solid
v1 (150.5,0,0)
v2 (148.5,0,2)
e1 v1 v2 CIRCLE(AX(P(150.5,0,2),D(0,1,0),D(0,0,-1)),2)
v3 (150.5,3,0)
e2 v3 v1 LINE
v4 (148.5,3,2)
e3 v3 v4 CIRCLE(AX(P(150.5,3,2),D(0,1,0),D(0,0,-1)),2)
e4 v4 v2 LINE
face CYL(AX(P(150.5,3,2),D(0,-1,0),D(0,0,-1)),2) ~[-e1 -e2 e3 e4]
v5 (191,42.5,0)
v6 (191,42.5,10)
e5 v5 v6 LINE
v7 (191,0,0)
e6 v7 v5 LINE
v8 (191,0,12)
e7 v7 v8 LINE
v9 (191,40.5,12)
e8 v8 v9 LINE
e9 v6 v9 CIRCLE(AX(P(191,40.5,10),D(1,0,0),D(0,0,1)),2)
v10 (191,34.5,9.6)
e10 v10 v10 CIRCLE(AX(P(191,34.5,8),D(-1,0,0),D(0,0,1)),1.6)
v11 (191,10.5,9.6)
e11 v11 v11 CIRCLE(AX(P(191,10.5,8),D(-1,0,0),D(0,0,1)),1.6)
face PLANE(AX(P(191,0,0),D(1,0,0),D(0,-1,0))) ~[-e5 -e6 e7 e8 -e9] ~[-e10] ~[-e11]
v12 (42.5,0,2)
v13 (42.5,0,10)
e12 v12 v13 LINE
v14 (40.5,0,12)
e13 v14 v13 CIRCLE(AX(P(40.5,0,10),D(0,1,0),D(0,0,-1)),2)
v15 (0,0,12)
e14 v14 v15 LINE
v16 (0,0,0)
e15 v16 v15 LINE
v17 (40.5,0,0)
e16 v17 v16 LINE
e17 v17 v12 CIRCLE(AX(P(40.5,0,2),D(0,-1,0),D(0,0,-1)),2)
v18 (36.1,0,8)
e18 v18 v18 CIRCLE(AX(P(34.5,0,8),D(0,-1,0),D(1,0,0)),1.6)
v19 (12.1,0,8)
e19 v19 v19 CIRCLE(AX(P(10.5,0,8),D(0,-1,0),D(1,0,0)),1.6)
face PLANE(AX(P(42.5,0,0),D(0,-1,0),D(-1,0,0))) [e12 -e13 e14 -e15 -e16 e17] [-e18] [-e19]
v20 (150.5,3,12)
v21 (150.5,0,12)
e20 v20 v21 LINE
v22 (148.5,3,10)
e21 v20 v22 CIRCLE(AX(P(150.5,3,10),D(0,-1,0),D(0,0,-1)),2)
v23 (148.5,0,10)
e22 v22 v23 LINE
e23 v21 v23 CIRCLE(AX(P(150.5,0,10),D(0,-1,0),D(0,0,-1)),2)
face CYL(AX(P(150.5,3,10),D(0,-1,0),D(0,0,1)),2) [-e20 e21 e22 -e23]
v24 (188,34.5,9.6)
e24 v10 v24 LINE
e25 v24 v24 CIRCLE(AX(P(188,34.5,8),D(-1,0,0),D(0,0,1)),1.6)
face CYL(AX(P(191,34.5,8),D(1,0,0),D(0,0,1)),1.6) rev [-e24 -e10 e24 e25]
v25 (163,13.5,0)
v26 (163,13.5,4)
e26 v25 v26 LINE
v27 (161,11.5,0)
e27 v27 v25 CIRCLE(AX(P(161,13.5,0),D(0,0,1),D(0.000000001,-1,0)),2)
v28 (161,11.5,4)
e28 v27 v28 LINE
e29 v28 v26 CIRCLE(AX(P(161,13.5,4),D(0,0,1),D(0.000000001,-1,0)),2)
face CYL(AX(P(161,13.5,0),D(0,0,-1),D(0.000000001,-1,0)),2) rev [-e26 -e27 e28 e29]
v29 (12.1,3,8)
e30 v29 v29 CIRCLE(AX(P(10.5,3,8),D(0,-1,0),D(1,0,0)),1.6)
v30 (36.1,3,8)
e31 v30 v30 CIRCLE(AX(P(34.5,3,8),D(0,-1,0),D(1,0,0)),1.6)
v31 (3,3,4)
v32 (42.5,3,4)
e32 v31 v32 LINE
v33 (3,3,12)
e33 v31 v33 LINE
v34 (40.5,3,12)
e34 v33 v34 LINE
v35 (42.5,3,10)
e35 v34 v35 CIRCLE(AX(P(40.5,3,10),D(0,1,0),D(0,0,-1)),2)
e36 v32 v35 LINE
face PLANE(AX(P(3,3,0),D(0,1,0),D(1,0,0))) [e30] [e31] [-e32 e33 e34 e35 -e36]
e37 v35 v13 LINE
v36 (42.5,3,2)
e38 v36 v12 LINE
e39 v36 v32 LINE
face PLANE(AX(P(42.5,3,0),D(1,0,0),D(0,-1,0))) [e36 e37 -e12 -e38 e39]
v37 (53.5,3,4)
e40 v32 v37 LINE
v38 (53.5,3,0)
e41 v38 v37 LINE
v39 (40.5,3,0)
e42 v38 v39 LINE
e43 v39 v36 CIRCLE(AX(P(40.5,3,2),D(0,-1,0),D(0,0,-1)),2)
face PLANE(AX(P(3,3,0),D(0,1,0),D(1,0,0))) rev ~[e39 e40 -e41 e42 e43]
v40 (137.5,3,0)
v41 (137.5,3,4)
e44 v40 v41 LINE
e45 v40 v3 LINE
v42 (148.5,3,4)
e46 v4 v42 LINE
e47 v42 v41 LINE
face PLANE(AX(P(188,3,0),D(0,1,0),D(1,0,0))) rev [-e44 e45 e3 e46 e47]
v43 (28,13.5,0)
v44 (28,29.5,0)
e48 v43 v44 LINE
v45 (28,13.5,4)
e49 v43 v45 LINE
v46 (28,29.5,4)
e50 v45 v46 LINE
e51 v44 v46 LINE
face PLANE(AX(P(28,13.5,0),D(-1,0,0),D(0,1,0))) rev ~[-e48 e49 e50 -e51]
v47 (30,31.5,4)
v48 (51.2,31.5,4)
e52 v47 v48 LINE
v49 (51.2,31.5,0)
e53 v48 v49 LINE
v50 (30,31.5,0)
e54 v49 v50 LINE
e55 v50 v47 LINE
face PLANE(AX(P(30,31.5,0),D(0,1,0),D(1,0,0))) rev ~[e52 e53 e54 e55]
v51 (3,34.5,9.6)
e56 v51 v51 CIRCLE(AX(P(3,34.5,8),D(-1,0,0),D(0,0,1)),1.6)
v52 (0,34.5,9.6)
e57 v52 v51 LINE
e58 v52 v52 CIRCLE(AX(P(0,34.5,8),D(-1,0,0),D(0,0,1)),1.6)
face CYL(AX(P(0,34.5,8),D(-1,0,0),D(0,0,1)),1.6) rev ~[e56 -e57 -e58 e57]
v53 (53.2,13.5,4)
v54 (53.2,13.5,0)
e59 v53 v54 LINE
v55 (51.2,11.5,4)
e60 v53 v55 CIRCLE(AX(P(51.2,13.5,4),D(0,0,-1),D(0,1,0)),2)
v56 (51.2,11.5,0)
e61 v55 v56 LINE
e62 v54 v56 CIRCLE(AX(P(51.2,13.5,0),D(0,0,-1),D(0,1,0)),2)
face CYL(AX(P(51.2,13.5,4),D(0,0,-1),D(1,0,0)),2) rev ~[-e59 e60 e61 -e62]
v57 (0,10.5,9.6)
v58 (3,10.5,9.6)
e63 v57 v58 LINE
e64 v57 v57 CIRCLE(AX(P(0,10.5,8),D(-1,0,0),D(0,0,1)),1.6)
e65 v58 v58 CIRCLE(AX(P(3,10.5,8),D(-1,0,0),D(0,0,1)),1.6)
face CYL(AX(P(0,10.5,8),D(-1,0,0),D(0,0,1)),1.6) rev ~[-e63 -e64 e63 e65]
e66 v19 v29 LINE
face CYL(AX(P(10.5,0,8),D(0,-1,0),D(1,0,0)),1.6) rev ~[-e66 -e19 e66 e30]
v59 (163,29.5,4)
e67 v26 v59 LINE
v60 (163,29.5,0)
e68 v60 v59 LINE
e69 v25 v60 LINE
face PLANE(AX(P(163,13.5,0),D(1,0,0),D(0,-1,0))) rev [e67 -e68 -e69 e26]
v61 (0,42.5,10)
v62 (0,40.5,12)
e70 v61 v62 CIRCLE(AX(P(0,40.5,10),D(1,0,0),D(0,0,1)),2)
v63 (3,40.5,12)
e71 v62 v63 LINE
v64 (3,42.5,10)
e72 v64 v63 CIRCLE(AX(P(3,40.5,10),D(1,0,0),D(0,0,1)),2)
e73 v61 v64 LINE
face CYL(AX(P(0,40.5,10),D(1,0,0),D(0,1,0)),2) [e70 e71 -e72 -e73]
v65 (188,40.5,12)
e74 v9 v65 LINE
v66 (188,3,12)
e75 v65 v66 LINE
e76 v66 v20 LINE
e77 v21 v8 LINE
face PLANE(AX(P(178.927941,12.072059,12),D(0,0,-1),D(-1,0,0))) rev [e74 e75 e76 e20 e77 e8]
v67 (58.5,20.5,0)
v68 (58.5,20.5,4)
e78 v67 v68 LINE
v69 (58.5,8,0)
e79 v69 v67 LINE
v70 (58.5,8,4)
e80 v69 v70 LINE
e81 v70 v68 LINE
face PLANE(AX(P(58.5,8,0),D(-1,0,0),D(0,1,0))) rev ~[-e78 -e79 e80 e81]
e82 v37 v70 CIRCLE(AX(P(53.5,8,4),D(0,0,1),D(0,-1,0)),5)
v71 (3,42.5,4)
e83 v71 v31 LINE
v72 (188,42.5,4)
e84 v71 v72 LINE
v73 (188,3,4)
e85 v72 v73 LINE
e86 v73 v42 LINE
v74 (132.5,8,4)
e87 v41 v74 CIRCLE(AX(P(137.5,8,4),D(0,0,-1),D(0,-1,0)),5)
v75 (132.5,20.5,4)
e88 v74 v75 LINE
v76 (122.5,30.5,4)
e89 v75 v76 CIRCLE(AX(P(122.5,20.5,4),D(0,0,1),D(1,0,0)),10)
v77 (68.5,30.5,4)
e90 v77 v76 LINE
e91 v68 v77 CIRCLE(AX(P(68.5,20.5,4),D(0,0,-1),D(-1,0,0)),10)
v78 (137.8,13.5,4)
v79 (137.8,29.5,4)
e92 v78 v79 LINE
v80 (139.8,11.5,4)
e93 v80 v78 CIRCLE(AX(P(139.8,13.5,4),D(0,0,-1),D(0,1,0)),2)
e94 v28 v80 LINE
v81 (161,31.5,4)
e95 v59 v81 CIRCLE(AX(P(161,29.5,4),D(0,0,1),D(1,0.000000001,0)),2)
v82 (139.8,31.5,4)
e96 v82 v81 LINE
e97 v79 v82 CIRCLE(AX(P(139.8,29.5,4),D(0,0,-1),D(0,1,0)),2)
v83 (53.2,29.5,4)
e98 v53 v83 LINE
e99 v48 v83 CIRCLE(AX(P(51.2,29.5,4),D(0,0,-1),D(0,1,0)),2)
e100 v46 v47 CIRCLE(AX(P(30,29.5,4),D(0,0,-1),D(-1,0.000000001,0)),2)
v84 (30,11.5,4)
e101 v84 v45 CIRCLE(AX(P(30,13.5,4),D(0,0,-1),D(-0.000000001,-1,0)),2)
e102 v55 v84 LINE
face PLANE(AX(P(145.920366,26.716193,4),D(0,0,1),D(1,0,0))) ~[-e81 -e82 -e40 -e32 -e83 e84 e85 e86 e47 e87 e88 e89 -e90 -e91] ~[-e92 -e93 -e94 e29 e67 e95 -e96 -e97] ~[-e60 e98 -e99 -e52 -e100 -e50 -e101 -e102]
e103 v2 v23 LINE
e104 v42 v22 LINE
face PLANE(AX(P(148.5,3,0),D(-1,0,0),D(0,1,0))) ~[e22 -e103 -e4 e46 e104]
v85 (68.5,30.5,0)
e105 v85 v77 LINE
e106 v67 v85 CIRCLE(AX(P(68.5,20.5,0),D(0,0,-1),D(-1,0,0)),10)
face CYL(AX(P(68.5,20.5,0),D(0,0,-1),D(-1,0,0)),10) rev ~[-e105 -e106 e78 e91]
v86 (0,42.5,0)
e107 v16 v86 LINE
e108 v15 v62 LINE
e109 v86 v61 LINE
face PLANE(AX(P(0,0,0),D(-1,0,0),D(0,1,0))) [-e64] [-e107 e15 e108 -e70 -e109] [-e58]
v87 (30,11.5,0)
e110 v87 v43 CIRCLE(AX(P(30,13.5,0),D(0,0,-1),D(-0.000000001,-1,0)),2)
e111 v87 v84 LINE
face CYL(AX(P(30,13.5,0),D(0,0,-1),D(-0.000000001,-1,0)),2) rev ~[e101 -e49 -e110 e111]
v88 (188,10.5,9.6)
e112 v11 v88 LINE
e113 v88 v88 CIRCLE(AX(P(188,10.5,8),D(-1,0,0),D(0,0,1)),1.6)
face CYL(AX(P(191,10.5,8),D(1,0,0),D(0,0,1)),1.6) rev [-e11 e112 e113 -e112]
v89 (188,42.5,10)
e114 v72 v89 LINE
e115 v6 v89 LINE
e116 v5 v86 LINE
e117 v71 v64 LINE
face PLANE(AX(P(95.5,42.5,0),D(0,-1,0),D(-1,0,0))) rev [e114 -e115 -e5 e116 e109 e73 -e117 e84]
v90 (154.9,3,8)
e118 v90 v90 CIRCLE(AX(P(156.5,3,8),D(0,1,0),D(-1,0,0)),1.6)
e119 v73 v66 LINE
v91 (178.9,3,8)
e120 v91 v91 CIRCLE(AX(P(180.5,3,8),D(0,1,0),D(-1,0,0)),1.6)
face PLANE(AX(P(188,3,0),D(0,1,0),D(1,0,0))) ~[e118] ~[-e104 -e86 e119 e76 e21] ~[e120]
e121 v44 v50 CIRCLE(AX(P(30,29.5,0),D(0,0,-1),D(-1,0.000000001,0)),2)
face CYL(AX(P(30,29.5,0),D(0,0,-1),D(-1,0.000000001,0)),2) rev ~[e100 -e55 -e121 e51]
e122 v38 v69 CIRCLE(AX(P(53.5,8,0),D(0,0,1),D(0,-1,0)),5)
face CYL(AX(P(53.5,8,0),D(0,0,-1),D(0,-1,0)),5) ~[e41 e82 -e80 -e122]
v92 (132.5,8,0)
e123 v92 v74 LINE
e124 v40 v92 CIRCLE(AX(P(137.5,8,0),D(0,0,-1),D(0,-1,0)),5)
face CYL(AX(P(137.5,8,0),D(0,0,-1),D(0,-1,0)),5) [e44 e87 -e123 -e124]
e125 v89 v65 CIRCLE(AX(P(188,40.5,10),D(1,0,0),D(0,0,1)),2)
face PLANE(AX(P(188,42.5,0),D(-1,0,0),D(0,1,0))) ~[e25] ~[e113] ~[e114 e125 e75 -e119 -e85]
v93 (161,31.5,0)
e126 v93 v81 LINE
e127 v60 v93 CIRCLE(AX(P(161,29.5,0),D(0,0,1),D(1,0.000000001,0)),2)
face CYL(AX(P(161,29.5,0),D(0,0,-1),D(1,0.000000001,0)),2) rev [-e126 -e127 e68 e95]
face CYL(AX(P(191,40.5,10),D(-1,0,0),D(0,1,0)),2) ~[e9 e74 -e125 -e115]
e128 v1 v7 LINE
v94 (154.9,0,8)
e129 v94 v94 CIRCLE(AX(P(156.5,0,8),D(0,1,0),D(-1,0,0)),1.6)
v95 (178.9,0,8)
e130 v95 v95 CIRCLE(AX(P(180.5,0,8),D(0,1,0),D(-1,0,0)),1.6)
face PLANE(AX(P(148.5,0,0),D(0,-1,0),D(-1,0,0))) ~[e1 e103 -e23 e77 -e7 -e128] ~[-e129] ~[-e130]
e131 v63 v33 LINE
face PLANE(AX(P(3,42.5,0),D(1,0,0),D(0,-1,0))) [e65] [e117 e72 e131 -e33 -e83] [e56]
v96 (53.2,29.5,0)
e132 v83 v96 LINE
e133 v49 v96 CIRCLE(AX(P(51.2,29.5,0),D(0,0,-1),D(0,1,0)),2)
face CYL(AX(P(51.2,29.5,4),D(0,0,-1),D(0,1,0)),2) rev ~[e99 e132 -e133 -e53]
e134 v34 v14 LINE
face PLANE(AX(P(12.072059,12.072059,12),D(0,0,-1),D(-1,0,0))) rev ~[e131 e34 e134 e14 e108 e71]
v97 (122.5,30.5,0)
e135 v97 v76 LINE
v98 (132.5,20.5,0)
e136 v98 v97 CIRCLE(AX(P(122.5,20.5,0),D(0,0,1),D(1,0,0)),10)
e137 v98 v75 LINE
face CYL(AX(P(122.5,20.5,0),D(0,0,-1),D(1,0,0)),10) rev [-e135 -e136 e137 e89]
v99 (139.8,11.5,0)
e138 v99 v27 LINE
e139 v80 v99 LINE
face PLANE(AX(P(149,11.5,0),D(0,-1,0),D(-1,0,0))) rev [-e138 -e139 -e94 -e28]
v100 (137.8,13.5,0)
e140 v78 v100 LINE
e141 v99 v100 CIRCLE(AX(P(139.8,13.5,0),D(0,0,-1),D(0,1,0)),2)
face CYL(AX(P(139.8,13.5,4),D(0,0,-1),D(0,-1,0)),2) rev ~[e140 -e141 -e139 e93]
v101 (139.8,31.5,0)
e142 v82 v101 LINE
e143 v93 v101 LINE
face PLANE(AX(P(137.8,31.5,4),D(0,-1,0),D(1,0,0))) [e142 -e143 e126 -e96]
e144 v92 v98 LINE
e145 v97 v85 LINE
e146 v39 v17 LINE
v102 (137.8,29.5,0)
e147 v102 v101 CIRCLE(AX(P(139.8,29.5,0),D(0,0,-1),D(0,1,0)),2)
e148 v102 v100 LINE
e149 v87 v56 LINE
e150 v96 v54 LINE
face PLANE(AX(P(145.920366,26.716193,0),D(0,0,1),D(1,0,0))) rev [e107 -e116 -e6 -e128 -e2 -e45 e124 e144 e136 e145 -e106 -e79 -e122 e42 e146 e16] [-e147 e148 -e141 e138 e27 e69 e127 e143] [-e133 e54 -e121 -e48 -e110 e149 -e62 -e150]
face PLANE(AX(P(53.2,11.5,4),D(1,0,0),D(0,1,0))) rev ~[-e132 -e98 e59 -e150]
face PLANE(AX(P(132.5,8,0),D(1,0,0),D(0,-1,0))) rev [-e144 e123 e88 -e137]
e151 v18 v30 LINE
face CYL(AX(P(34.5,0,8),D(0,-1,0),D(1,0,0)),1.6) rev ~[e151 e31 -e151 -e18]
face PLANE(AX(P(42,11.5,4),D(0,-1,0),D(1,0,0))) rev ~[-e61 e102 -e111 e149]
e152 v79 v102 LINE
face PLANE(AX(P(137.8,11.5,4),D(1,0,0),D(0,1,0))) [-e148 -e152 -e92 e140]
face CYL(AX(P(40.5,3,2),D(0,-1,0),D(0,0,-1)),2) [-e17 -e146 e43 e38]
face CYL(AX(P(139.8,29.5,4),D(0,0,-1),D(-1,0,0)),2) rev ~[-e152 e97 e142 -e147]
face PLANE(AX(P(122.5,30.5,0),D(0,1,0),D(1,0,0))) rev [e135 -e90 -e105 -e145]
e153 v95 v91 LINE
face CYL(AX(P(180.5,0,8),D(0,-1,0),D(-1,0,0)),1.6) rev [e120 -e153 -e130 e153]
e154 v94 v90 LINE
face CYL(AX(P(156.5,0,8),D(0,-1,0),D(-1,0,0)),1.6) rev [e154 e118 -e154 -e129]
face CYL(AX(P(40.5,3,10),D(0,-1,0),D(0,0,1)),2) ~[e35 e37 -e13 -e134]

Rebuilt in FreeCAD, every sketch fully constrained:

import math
import FreeCAD as App
import Part
import Sketcher

V = App.Vector
Q = App.Units.Quantity


def edges_at(feature, points):
    """Names of the edges that pass closest to the given points."""
    edges = feature.Shape.Edges
    near = lambda p: min(range(len(edges)), key=lambda i: edges[i].distToShape(Part.Vertex(*p))[0])
    return sorted({f"Edge{near(p) + 1}" for p in points})


def add_polygon(sketch, points):
    """Adds a closed chain of lines whose ends are joined by coincident constraints."""
    first, n = sketch.GeometryCount, len(points)
    for a, b in zip(points, points[1:] + points[:1]):
        sketch.addGeometry(Part.LineSegment(App.Vector(*a, 0), App.Vector(*b, 0)), False)
    for i in range(n):
        sketch.addConstraint(Sketcher.Constraint("Coincident", first + i, 2, first + (i + 1) % n, 1))

doc = App.newDocument("Part")
body = doc.addObject("PartDesign::Body", "Body")

sketch1 = body.newObject("Sketcher::SketchObject", "Sketch")
sketch1.AttachmentSupport = (doc.getObject("XY_Plane"), [""])
sketch1.MapMode = "FlatFace"
add_polygon(sketch1, [(0, 0), (42.5, 0), (42.5, 3), (3, 3), (3, 42.5), (0, 42.5)])
sketch1.addConstraint([
    Sketcher.Constraint("Horizontal", 0),
    Sketcher.Constraint("Vertical", 1),
    Sketcher.Constraint("Horizontal", 2),
    Sketcher.Constraint("Vertical", 3),
    Sketcher.Constraint("Horizontal", 4),
    Sketcher.Constraint("Vertical", 5),
    Sketcher.Constraint("Coincident", 5, 2, -1, 1),
    Sketcher.Constraint("Equal", 4, 1),
    Sketcher.Constraint("Equal", 2, 3),
    Sketcher.Constraint("DistanceX", 4, 2, 4, 1, Q("3 mm")),
    Sketcher.Constraint("DistanceX", 0, 1, 0, 2, Q("42.5 mm")),
])
pad1 = body.newObject("PartDesign::Pad", "Pad")
pad1.Profile = sketch1
pad1.Length = 12

sketch2 = body.newObject("Sketcher::SketchObject", "Sketch001")
sketch2.AttachmentSupport = (doc.getObject("XY_Plane"), [""])
sketch2.MapMode = "FlatFace"
sketch2.addGeometry([
    Part.LineSegment(V(95.5, 42.5, 0), V(3, 42.5, 0)),
    Part.LineSegment(V(3, 42.5, 0), V(3, 3, 0)),
    Part.LineSegment(V(3, 3, 0), V(53.5, 3, 0)),
    Part.ArcOfCircle(Part.Circle(V(53.5, 8, 0), V(0, 0, 1), 5), math.radians(-90), math.radians(0)),
    Part.LineSegment(V(58.5, 8, 0), V(58.5, 20.5, 0)),
    Part.ArcOfCircle(Part.Circle(V(68.5, 20.5, 0), V(0, 0, 1), 10), math.radians(90), math.radians(180)),
    Part.LineSegment(V(68.5, 30.5, 0), V(95.5, 30.5, 0)),
    Part.LineSegment(V(95.5, 30.5, 0), V(95.5, 42.5, 0)),
    Part.LineSegment(V(28, 13.5, 0), V(28, 29.5, 0)),
    Part.ArcOfCircle(Part.Circle(V(30, 29.5, 0), V(0, 0, 1), 2), math.radians(90), math.radians(180)),
    Part.LineSegment(V(30, 31.5, 0), V(42, 31.5, 0)),
    Part.ArcOfCircle(Part.Circle(V(42, 29.5, 0), V(0, 0, 1), 2), math.radians(0), math.radians(90)),
    Part.LineSegment(V(44, 29.5, 0), V(44, 13.5, 0)),
    Part.ArcOfCircle(Part.Circle(V(42, 13.5, 0), V(0, 0, 1), 2), math.radians(-90), math.radians(0)),
    Part.LineSegment(V(42, 11.5, 0), V(30, 11.5, 0)),
    Part.ArcOfCircle(Part.Circle(V(30, 13.5, 0), V(0, 0, 1), 2), math.radians(-180), math.radians(-90)),
], False)
sketch2.addConstraint([
    Sketcher.Constraint("Coincident", 0, 2, 1, 1),
    Sketcher.Constraint("Coincident", 1, 2, 2, 1),
    Sketcher.Constraint("Tangent", 2, 2, 3, 1),
    Sketcher.Constraint("Tangent", 3, 2, 4, 1),
    Sketcher.Constraint("Tangent", 4, 2, 5, 2),
    Sketcher.Constraint("Tangent", 5, 1, 6, 1),
    Sketcher.Constraint("Coincident", 6, 2, 7, 1),
    Sketcher.Constraint("Coincident", 7, 2, 0, 1),
    Sketcher.Constraint("Tangent", 8, 2, 9, 2),
    Sketcher.Constraint("Tangent", 9, 1, 10, 1),
    Sketcher.Constraint("Tangent", 10, 2, 11, 2),
    Sketcher.Constraint("Tangent", 11, 1, 12, 1),
    Sketcher.Constraint("Tangent", 12, 2, 13, 2),
    Sketcher.Constraint("Tangent", 13, 1, 14, 1),
    Sketcher.Constraint("Tangent", 14, 2, 15, 2),
    Sketcher.Constraint("Tangent", 15, 1, 8, 1),
    Sketcher.Constraint("Horizontal", 0),
    Sketcher.Constraint("Vertical", 1),
    Sketcher.Constraint("Horizontal", 2),
    Sketcher.Constraint("Vertical", 4),
    Sketcher.Constraint("Horizontal", 6),
    Sketcher.Constraint("Vertical", 7),
    Sketcher.Constraint("Vertical", 8),
    Sketcher.Constraint("Horizontal", 10),
    Sketcher.Constraint("Vertical", 12),
    Sketcher.Constraint("Horizontal", 14),
    Sketcher.Constraint("Equal", 9, 11),
    Sketcher.Constraint("Equal", 11, 13),
    Sketcher.Constraint("Equal", 13, 15),
    Sketcher.Constraint("Equal", 14, 7),
    Sketcher.Constraint("Radius", 3, Q("5 mm")),
    Sketcher.Constraint("Radius", 5, Q("10 mm")),
    Sketcher.Constraint("Radius", 9, Q("2 mm")),
    Sketcher.Constraint("DistanceX", 6, 1, 6, 2, Q("27 mm")),
    Sketcher.Constraint("DistanceX", 10, 1, 10, 2, Q("12 mm")),
    Sketcher.Constraint("DistanceY", 8, 1, 8, 2, Q("16 mm")),
    Sketcher.Constraint("DistanceX", 0, 2, 0, 1, Q("92.5 mm")),
    Sketcher.Constraint("DistanceY", 1, 2, 1, 1, Q("39.5 mm")),
    Sketcher.Constraint("DistanceY", -1, 1, 3, 3, Q("8 mm")),
    Sketcher.Constraint("DistanceX", -1, 1, 9, 3, Q("30 mm")),
    Sketcher.Constraint("DistanceX", -1, 1, 0, 2, Q("3 mm")),
    Sketcher.Constraint("DistanceY", 5, 3, 9, 3, Q("9 mm")),
])
pad2 = body.newObject("PartDesign::Pad", "Pad001")
pad2.Profile = sketch2
pad2.Length = 4

sketch3 = body.newObject("Sketcher::SketchObject", "Sketch002")
sketch3.AttachmentSupport = (doc.getObject("YZ_Plane"), [""])
sketch3.MapMode = "FlatFace"
sketch3.addGeometry(Part.Circle(V(10.5, 8, 0), V(0, 0, 1), 1.6), False)
sketch3.addConstraint([
    Sketcher.Constraint("Diameter", 0, Q("3.2 mm")),
    Sketcher.Constraint("DistanceY", -1, 1, 0, 3, Q("8 mm")),
    Sketcher.Constraint("DistanceX", -1, 1, 0, 3, Q("10.5 mm")),
])
pocket1 = body.newObject("PartDesign::Pocket", "Pocket")
pocket1.Profile = sketch3
pocket1.Type = "UpToFirst"
pocket1.Reversed = True

sketch4 = body.newObject("Sketcher::SketchObject", "Sketch003")
sketch4.AttachmentSupport = (doc.getObject("YZ_Plane"), [""])
sketch4.MapMode = "FlatFace"
sketch4.addGeometry(Part.Circle(V(34.5, 8, 0), V(0, 0, 1), 1.6), False)
sketch4.addConstraint([
    Sketcher.Constraint("Diameter", 0, Q("3.2 mm")),
    Sketcher.Constraint("DistanceY", -1, 1, 0, 3, Q("8 mm")),
    Sketcher.Constraint("DistanceX", -1, 1, 0, 3, Q("34.5 mm")),
])
pocket2 = body.newObject("PartDesign::Pocket", "Pocket001")
pocket2.Profile = sketch4
pocket2.Type = "UpToFirst"
pocket2.Reversed = True

sketch5 = body.newObject("Sketcher::SketchObject", "Sketch004")
sketch5.AttachmentSupport = (doc.getObject("XZ_Plane"), [""])
sketch5.MapMode = "FlatFace"
sketch5.addGeometry(Part.Circle(V(10.5, 8, 0), V(0, 0, 1), 1.6), False)
sketch5.addConstraint([
    Sketcher.Constraint("Diameter", 0, Q("3.2 mm")),
    Sketcher.Constraint("DistanceY", -1, 1, 0, 3, Q("8 mm")),
    Sketcher.Constraint("DistanceX", -1, 1, 0, 3, Q("10.5 mm")),
])
pocket3 = body.newObject("PartDesign::Pocket", "Pocket002")
pocket3.Profile = sketch5
pocket3.Type = "UpToFirst"

sketch6 = body.newObject("Sketcher::SketchObject", "Sketch005")
sketch6.AttachmentSupport = (doc.getObject("XZ_Plane"), [""])
sketch6.MapMode = "FlatFace"
sketch6.addGeometry(Part.Circle(V(34.5, 8, 0), V(0, 0, 1), 1.6), False)
sketch6.addConstraint([
    Sketcher.Constraint("Diameter", 0, Q("3.2 mm")),
    Sketcher.Constraint("DistanceY", -1, 1, 0, 3, Q("8 mm")),
    Sketcher.Constraint("DistanceX", -1, 1, 0, 3, Q("34.5 mm")),
])
pocket4 = body.newObject("PartDesign::Pocket", "Pocket003")
pocket4.Profile = sketch6
pocket4.Type = "UpToFirst"
doc.recompute()

fillet = body.newObject("PartDesign::Fillet", "Fillet")
fillet.Base = (pocket4, edges_at(pocket4, [(42.5, 1.5, 12), (1.5, 42.5, 12), (42.5, 1.5, 0)]))
fillet.Radius = 2
body2 = doc.addObject("PartDesign::Body", "Body001")
doc.recompute()

body2.BaseFeature = body
doc.recompute()

mirroring = doc.addObject("Part::Mirroring", "Mirroring")
mirroring.Source = body
mirroring.Base = V(95.5, 0, 4)
mirroring.Normal = V(-1, 0, 0)
body3 = doc.addObject("PartDesign::Body", "Body002")
body3.BaseFeature = mirroring
boolean = body2.newObject("PartDesign::Boolean", "Boolean")
boolean.Type = "Fuse"
boolean.addObjects([body3])
doc.recompute()

sketch7 = body2.newObject("Sketcher::SketchObject", "Sketch006")
sketch7.AttachmentSupport = (doc.getObject("XY_Plane001"), [""])
sketch7.MapMode = "FlatFace"
sketch7.AttachmentOffset = App.Placement(V(0, 0, 4), App.Rotation())
add_polygon(sketch7, [(42, 32), (42, 12), (53, 12), (53, 32)])
add_polygon(sketch7, [(138, 32), (138, 12), (149, 12), (149, 32)])
sketch7.addConstraint([
    Sketcher.Constraint("Vertical", 0),
    Sketcher.Constraint("Horizontal", 1),
    Sketcher.Constraint("Vertical", 2),
    Sketcher.Constraint("Horizontal", 3),
    Sketcher.Constraint("Vertical", 4),
    Sketcher.Constraint("Horizontal", 5),
    Sketcher.Constraint("Vertical", 6),
    Sketcher.Constraint("Horizontal", 7),
    Sketcher.Constraint("Horizontal", 1, 2, 4, 2),
    Sketcher.Constraint("Horizontal", 3, 2, 6, 2),
    Sketcher.Constraint("Equal", 3, 5),
    Sketcher.Constraint("DistanceY", 0, 2, 0, 1, Q("20 mm")),
    Sketcher.Constraint("DistanceX", 1, 1, 1, 2, Q("11.2 mm")),
    Sketcher.Constraint("DistanceX", -1, 1, 0, 2, Q("42 mm")),
    Sketcher.Constraint("DistanceX", -1, 1, 5, 2, Q("149 mm")),
    Sketcher.Constraint("DistanceY", -1, 1, 0, 2, Q("11.5 mm")),
])
pocket5 = body2.newObject("PartDesign::Pocket", "Pocket004")
pocket5.Profile = sketch7
pocket5.Length = 20
doc.recompute()

fillet2 = body2.newObject("PartDesign::Fillet", "Fillet001")
fillet2.Base = (pocket5, edges_at(pocket5, [
    (53.2, 11.5, 2),
    (53.2, 31.5, 2),
    (137.8, 11.5, 2),
    (137.8, 31.5, 2),
]))
fillet2.Radius = 2
mirroring.Visibility = False

doc.recompute()
